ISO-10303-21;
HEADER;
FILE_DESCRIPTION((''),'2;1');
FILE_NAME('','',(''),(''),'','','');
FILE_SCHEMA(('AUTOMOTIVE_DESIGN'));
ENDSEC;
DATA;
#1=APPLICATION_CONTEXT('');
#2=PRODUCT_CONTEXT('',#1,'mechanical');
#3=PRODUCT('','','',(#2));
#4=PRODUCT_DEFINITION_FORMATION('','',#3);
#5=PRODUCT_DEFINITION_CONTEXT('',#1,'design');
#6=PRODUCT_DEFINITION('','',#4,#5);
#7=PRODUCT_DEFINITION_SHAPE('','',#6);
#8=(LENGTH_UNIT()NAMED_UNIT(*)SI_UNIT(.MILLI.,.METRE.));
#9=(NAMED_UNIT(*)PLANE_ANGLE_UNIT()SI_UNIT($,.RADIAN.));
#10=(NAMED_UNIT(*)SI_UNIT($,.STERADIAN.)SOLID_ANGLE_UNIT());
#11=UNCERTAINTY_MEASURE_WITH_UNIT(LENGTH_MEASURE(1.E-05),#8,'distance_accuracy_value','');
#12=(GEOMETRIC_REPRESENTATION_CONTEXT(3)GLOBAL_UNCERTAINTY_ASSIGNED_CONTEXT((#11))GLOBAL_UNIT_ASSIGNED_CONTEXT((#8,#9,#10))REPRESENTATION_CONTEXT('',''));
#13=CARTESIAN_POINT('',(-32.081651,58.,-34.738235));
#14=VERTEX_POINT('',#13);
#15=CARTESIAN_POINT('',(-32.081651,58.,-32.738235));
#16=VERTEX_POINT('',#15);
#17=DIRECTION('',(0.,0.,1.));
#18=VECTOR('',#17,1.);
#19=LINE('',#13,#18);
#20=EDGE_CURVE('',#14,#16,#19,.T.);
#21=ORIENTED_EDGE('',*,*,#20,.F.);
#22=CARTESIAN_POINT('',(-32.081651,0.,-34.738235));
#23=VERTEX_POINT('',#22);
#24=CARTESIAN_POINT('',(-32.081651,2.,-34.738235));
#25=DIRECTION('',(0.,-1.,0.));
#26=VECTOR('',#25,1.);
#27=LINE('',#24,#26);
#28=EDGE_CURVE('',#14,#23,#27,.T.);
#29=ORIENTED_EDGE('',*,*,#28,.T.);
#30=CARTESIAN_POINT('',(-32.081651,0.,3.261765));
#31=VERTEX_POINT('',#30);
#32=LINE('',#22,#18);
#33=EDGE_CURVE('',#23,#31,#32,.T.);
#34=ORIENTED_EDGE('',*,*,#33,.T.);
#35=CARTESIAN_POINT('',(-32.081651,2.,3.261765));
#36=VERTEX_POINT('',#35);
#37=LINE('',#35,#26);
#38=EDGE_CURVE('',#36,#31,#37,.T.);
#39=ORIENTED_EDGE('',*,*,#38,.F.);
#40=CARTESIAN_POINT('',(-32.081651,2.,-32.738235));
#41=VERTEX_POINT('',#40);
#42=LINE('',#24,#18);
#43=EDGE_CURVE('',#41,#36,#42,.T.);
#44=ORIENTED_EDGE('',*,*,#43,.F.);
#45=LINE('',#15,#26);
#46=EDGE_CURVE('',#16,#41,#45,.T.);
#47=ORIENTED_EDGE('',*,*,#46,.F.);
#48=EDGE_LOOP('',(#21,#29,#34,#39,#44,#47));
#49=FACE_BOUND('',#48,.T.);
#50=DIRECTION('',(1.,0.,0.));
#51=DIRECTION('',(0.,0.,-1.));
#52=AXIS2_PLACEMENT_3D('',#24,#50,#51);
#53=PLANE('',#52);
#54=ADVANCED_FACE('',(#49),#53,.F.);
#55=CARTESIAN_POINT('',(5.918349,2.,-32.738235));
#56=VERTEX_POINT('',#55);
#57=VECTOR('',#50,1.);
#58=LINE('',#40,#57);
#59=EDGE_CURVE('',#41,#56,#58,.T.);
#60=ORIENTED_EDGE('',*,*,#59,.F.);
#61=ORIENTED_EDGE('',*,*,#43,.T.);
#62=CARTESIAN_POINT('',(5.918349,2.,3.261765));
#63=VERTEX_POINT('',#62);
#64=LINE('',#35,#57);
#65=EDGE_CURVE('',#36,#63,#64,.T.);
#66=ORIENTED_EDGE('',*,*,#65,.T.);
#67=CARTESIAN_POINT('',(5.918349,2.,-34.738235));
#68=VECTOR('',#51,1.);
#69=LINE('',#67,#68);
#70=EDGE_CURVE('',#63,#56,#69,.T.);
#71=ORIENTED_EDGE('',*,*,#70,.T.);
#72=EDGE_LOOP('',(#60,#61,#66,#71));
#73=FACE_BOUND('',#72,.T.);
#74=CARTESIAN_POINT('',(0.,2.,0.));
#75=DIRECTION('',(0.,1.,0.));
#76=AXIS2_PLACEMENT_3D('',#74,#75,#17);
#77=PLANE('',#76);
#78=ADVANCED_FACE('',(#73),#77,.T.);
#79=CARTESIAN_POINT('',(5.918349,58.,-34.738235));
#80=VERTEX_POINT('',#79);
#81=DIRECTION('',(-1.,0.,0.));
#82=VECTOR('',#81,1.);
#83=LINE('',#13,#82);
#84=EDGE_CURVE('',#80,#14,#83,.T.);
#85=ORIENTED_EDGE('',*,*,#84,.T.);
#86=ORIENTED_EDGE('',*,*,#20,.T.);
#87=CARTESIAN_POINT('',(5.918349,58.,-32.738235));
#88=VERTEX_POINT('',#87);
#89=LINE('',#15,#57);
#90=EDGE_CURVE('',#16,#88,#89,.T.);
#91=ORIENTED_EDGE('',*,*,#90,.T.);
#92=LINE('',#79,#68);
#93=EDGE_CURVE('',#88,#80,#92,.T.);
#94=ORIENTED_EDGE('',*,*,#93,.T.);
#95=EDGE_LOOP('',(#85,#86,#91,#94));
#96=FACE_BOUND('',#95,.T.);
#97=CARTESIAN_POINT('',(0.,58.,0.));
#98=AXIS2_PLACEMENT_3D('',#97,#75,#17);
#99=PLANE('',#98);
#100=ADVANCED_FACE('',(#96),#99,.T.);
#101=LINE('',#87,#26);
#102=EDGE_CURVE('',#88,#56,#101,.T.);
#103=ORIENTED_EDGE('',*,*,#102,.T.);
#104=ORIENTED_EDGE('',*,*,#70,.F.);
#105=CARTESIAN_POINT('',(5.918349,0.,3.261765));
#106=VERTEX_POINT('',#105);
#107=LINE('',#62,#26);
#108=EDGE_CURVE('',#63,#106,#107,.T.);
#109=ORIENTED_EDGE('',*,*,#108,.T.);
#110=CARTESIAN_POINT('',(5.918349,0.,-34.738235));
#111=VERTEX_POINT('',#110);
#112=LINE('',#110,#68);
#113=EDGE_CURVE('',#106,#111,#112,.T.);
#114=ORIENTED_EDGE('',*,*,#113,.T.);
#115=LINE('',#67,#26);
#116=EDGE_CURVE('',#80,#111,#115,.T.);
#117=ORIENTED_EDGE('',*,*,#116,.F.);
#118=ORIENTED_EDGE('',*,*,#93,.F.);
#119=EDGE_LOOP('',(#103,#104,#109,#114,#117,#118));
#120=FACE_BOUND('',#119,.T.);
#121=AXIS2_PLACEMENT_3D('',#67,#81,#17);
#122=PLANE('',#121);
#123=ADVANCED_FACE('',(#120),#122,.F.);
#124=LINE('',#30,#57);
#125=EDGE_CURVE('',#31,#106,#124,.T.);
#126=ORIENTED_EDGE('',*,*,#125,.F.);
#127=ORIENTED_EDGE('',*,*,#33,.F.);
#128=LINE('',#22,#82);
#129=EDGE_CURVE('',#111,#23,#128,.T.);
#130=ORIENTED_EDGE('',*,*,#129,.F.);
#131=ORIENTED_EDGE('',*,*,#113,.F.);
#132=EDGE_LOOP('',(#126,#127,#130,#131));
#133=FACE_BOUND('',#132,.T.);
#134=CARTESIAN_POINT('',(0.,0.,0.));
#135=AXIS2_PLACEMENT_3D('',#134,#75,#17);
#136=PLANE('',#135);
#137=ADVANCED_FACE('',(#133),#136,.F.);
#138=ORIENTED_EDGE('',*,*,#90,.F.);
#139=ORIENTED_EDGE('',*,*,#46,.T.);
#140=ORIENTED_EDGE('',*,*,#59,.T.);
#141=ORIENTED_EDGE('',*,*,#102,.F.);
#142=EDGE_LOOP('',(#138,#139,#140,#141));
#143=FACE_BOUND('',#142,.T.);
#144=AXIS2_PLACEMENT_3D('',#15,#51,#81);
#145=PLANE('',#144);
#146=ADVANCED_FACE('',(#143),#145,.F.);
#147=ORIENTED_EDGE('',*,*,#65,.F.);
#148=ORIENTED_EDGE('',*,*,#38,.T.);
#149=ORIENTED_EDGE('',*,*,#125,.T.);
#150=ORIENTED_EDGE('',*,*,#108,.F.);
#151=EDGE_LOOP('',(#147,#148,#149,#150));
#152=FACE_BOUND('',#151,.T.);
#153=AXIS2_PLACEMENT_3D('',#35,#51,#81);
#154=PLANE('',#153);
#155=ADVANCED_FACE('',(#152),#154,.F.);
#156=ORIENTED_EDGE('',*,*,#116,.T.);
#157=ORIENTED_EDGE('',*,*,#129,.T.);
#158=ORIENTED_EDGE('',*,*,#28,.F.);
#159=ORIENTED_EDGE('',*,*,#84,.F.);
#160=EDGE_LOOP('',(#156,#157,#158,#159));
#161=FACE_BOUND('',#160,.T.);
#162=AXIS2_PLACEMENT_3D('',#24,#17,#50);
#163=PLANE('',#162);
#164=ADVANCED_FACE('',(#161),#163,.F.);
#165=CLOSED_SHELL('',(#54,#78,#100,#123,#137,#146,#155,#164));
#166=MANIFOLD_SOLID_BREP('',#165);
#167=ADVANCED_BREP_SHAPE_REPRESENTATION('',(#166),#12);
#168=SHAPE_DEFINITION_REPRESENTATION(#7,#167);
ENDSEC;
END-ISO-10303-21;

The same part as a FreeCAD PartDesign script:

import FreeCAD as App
import Part
import Sketcher
Q = App.Units.Quantity


def add_polygon(sketch, points):
    """Adds a closed chain of lines whose ends are joined by coincident constraints."""
    first, n = sketch.GeometryCount, len(points)
    for a, b in zip(points, points[1:] + points[:1]):
        sketch.addGeometry(Part.LineSegment(App.Vector(*a, 0), App.Vector(*b, 0)), False)
    for i in range(n):
        sketch.addConstraint(Sketcher.Constraint("Coincident", first + i, 2, first + (i + 1) % n, 1))

doc = App.newDocument("Part")
params = doc.addObject("Spreadsheet::Sheet", "Params")
for row, (alias, value) in enumerate([
    ("sketch1_width", "38 mm"),
    ("pad1_length", "2 mm"),
    ("sketch2_width", "38 mm"),
    ("sketch2_height", "2 mm"),
    ("pad2_length", "56 mm"),
], start=1):
    params.set(f"A{row}", alias)
    params.set(f"B{row}", "=" + value)
    params.setAlias(f"B{row}", alias)

body = doc.addObject("PartDesign::Body", "Body")

# Sketch on XZ plane
sketch1 = doc.addObject("Sketcher::SketchObject", "Sketch")
body.addObject(sketch1)
sketch1.AttachmentSupport = (doc.XZ_Plane, [""])
sketch1.MapMode = "FlatFace"
add_polygon(sketch1, [(-32.081651, -34.738235), (-32.081651, 3.261765), (5.918349, 3.261765), (5.918349, -34.738235)])  # lines 0-3
sketch1.addConstraint(Sketcher.Constraint("Vertical", 0))
sketch1.addConstraint(Sketcher.Constraint("Horizontal", 1))
sketch1.addConstraint(Sketcher.Constraint("Vertical", 2))
sketch1.addConstraint(Sketcher.Constraint("Horizontal", 3))
sketch1.addConstraint(Sketcher.Constraint("Equal", 3, 0))
sketch1.addConstraint(Sketcher.Constraint("DistanceX", 1, 1, 1, 2, Q("38 mm")))
sketch1.addConstraint(Sketcher.Constraint("DistanceX", 0, 2, -1, 1, Q("32.081651 mm")))
sketch1.addConstraint(Sketcher.Constraint("DistanceY", -1, 1, 0, 2, Q("3.261765 mm")))
sketch1.setExpression("Constraints[9]", "Params.sketch1_width")
pad1 = doc.addObject("PartDesign::Pad", "Pad")
body.addObject(pad1)
pad1.Profile = sketch1
pad1.setExpression("Length", "Params.pad1_length")
pad1.Reversed = True

# Sketch on XZ plane
sketch2 = doc.addObject("Sketcher::SketchObject", "Sketch001")
body.addObject(sketch2)
sketch2.AttachmentSupport = (doc.XZ_Plane, [""])
sketch2.MapMode = "FlatFace"
sketch2.AttachmentOffset = App.Placement(App.Vector(0, 0, -2), App.Rotation())
add_polygon(sketch2, [(-32.081651, -34.738235), (-32.081651, -32.738235), (5.918349, -32.738235), (5.918349, -34.738235)])  # lines 0-3
sketch2.addConstraint(Sketcher.Constraint("Vertical", 0))
sketch2.addConstraint(Sketcher.Constraint("Horizontal", 1))
sketch2.addConstraint(Sketcher.Constraint("Vertical", 2))
sketch2.addConstraint(Sketcher.Constraint("Horizontal", 3))
sketch2.addConstraint(Sketcher.Constraint("DistanceX", 1, 1, 1, 2, Q("38 mm")))
sketch2.addConstraint(Sketcher.Constraint("DistanceY", 0, 1, 0, 2, Q("2 mm")))
sketch2.addConstraint(Sketcher.Constraint("DistanceX", 0, 2, -1, 1, Q("32.081651 mm")))
sketch2.addConstraint(Sketcher.Constraint("DistanceY", 0, 2, -1, 1, Q("32.738235 mm")))
sketch2.setExpression("Constraints[8]", "Params.sketch2_width")
sketch2.setExpression("Constraints[9]", "Params.sketch2_height")
pad2 = doc.addObject("PartDesign::Pad", "Pad001")
body.addObject(pad2)
pad2.Profile = sketch2
pad2.setExpression("Length", "Params.pad2_length")
pad2.Reversed = True

doc.recompute()
